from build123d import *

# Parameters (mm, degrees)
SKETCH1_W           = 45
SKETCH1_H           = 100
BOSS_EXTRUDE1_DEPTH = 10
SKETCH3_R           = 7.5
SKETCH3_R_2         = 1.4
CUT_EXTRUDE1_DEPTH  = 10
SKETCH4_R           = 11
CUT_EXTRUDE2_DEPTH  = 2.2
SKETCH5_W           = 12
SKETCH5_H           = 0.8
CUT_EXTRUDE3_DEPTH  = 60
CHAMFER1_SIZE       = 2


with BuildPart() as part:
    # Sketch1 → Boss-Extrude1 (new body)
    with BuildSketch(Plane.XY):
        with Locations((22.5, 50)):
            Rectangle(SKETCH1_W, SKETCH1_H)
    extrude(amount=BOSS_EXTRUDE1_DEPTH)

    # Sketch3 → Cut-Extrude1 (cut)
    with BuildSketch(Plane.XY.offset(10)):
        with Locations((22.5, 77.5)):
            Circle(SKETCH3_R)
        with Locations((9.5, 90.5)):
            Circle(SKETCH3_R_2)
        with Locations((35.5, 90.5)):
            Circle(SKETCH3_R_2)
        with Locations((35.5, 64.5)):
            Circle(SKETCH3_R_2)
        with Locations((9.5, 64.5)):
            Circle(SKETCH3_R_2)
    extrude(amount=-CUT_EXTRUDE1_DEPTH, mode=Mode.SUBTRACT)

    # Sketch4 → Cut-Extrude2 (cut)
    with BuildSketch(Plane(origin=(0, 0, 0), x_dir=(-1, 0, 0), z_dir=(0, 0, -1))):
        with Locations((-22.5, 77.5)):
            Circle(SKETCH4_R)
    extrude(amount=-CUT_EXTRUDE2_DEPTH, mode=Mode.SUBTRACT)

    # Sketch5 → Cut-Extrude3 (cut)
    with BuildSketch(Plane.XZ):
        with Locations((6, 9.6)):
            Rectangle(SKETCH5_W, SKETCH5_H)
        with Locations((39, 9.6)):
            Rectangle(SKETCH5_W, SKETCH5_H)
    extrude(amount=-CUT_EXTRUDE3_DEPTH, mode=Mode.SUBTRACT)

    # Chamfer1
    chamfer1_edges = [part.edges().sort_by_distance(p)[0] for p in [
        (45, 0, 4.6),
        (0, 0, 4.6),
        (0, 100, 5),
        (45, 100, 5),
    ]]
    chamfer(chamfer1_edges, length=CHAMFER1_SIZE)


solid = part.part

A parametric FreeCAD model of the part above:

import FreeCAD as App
import Part
import Sketcher
Q = App.Units.Quantity


def edges_at(feature, points):
    """Names of the edges that pass closest to the given points."""
    edges = feature.Shape.Edges
    near = lambda p: min(range(len(edges)), key=lambda i: edges[i].distToShape(Part.Vertex(*p))[0])
    return sorted({f"Edge{near(p) + 1}" for p in points})


def add_polygon(sketch, points):
    """Adds a closed chain of lines whose ends are joined by coincident constraints."""
    first, n = sketch.GeometryCount, len(points)
    for a, b in zip(points, points[1:] + points[:1]):
        sketch.addGeometry(Part.LineSegment(App.Vector(*a, 0), App.Vector(*b, 0)), False)
    for i in range(n):
        sketch.addConstraint(Sketcher.Constraint("Coincident", first + i, 2, first + (i + 1) % n, 1))

doc = App.newDocument("Part")
body = doc.addObject("PartDesign::Body", "Body")

# Sketch on XY plane
sketch1 = body.newObject("Sketcher::SketchObject", "Sketch")
sketch1.AttachmentSupport = (doc.getObject("XY_Plane"), [""])
sketch1.MapMode = "FlatFace"
add_polygon(sketch1, [(0, 100), (0, 0), (45, 0), (45, 100)])  # lines 0-3
sketch1.addConstraint(Sketcher.Constraint("Vertical", 0))
sketch1.addConstraint(Sketcher.Constraint("Horizontal", 1))
sketch1.addConstraint(Sketcher.Constraint("Vertical", 2))
sketch1.addConstraint(Sketcher.Constraint("Horizontal", 3))
sketch1.addConstraint(Sketcher.Constraint("Coincident", 0, 2, -1, 1))
sketch1.addConstraint(Sketcher.Constraint("DistanceX", 1, 1, 1, 2, Q("45 mm")))
sketch1.addConstraint(Sketcher.Constraint("DistanceY", 0, 2, 0, 1, Q("100 mm")))
pad1 = body.newObject("PartDesign::Pad", "Pad")
pad1.Profile = sketch1
pad1.Length = 10

# Sketch on XY plane
sketch2 = body.newObject("Sketcher::SketchObject", "Sketch001")
sketch2.AttachmentSupport = (doc.getObject("XY_Plane"), [""])
sketch2.MapMode = "FlatFace"
sketch2.AttachmentOffset = App.Placement(App.Vector(0, 0, 10), App.Rotation())
sketch2.addGeometry(Part.Circle(App.Vector(22.5, 77.5, 0), App.Vector(0, 0, 1), 7.5), False)
sketch2.addGeometry(Part.Circle(App.Vector(9.5, 90.5, 0), App.Vector(0, 0, 1), 1.4), False)
sketch2.addGeometry(Part.Circle(App.Vector(35.5, 90.5, 0), App.Vector(0, 0, 1), 1.4), False)
sketch2.addGeometry(Part.Circle(App.Vector(35.5, 64.5, 0), App.Vector(0, 0, 1), 1.4), False)
sketch2.addGeometry(Part.Circle(App.Vector(9.5, 64.5, 0), App.Vector(0, 0, 1), 1.4), False)
sketch2.addConstraint(Sketcher.Constraint("Equal", 1, 2))
sketch2.addConstraint(Sketcher.Constraint("Equal", 2, 3))
sketch2.addConstraint(Sketcher.Constraint("Equal", 3, 4))
sketch2.addConstraint(Sketcher.Constraint("Horizontal", 1, 3, 2, 3))
sketch2.addConstraint(Sketcher.Constraint("Horizontal", 3, 3, 4, 3))
sketch2.addConstraint(Sketcher.Constraint("Vertical", 2, 3, 3, 3))
sketch2.addConstraint(Sketcher.Constraint("Vertical", 1, 3, 4, 3))
sketch2.addConstraint(Sketcher.Constraint("Diameter", 0, Q("15 mm")))
sketch2.addConstraint(Sketcher.Constraint("Diameter", 1, Q("2.8 mm")))
sketch2.addConstraint(Sketcher.Constraint("DistanceX", 1, 3, 0, 3, Q("13 mm")))
sketch2.addConstraint(Sketcher.Constraint("DistanceY", 0, 3, 1, 3, Q("13 mm")))
sketch2.addConstraint(Sketcher.Constraint("DistanceX", 0, 3, 2, 3, Q("13 mm")))
sketch2.addConstraint(Sketcher.Constraint("DistanceY", 3, 3, 0, 3, Q("13 mm")))
sketch2.addConstraint(Sketcher.Constraint("DistanceX", -1, 1, 0, 3, Q("22.5 mm")))
sketch2.addConstraint(Sketcher.Constraint("DistanceY", -1, 1, 0, 3, Q("77.5 mm")))
pocket1 = body.newObject("PartDesign::Pocket", "Pocket")
pocket1.Profile = sketch2
pocket1.Length = 10

# Sketch on XY plane
sketch3 = body.newObject("Sketcher::SketchObject", "Sketch002")
sketch3.AttachmentSupport = (doc.getObject("XY_Plane"), [""])
sketch3.MapMode = "FlatFace"
sketch3.addGeometry(Part.Circle(App.Vector(22, 78, 0), App.Vector(0, 0, 1), 11), False)
sketch3.addConstraint(Sketcher.Constraint("Diameter", 0, Q("22 mm")))
sketch3.addConstraint(Sketcher.Constraint("DistanceX", -1, 1, 0, 3, Q("22.5 mm")))
sketch3.addConstraint(Sketcher.Constraint("DistanceY", -1, 1, 0, 3, Q("77.5 mm")))
pocket2 = body.newObject("PartDesign::Pocket", "Pocket001")
pocket2.Profile = sketch3
pocket2.Length = 2.2
pocket2.Reversed = True

# Sketch on XZ plane
sketch4 = body.newObject("Sketcher::SketchObject", "Sketch003")
sketch4.AttachmentSupport = (doc.getObject("XZ_Plane"), [""])
sketch4.MapMode = "FlatFace"
add_polygon(sketch4, [(0, 10), (0, 9.2), (12, 9.2), (12, 10)])  # lines 0-3
add_polygon(sketch4, [(33, 10), (33, 9.2), (45, 9.2), (45, 10)])  # lines 4-7
sketch4.addConstraint(Sketcher.Constraint("Vertical", 0))
sketch4.addConstraint(Sketcher.Constraint("Horizontal", 1))
sketch4.addConstraint(Sketcher.Constraint("Vertical", 2))
sketch4.addConstraint(Sketcher.Constraint("Horizontal", 3))
sketch4.addConstraint(Sketcher.Constraint("Vertical", 4))
sketch4.addConstraint(Sketcher.Constraint("Horizontal", 5))
sketch4.addConstraint(Sketcher.Constraint("Vertical", 6))
sketch4.addConstraint(Sketcher.Constraint("Horizontal", 7))
sketch4.addConstraint(Sketcher.Constraint("PointOnObject", 0, 2, -2))
sketch4.addConstraint(Sketcher.Constraint("Horizontal", 1, 2, 4, 2))
sketch4.addConstraint(Sketcher.Constraint("Horizontal", 3, 2, 6, 2))
sketch4.addConstraint(Sketcher.Constraint("Equal", 3, 5))
sketch4.addConstraint(Sketcher.Constraint("DistanceX", 1, 1, 1, 2, Q("12 mm")))
sketch4.addConstraint(Sketcher.Constraint("DistanceY", 0, 2, 0, 1, Q("0.8 mm")))
sketch4.addConstraint(Sketcher.Constraint("DistanceY", -1, 1, 2, 2, Q("10 mm")))
sketch4.addConstraint(Sketcher.Constraint("DistanceX", -1, 1, 4, 2, Q("33 mm")))
pocket3 = body.newObject("PartDesign::Pocket", "Pocket002")
pocket3.Profile = sketch4
pocket3.Length = 60
doc.recompute()

chamfer = body.newObject("PartDesign::Chamfer", "Chamfer")
chamfer.Base = (pocket3, edges_at(pocket3, [
    (45, 0, 4.6),
    (0, 0, 4.6),
    (0, 100, 5),
    (45, 100, 5),
]))
chamfer.Size = 2

doc.recompute()
